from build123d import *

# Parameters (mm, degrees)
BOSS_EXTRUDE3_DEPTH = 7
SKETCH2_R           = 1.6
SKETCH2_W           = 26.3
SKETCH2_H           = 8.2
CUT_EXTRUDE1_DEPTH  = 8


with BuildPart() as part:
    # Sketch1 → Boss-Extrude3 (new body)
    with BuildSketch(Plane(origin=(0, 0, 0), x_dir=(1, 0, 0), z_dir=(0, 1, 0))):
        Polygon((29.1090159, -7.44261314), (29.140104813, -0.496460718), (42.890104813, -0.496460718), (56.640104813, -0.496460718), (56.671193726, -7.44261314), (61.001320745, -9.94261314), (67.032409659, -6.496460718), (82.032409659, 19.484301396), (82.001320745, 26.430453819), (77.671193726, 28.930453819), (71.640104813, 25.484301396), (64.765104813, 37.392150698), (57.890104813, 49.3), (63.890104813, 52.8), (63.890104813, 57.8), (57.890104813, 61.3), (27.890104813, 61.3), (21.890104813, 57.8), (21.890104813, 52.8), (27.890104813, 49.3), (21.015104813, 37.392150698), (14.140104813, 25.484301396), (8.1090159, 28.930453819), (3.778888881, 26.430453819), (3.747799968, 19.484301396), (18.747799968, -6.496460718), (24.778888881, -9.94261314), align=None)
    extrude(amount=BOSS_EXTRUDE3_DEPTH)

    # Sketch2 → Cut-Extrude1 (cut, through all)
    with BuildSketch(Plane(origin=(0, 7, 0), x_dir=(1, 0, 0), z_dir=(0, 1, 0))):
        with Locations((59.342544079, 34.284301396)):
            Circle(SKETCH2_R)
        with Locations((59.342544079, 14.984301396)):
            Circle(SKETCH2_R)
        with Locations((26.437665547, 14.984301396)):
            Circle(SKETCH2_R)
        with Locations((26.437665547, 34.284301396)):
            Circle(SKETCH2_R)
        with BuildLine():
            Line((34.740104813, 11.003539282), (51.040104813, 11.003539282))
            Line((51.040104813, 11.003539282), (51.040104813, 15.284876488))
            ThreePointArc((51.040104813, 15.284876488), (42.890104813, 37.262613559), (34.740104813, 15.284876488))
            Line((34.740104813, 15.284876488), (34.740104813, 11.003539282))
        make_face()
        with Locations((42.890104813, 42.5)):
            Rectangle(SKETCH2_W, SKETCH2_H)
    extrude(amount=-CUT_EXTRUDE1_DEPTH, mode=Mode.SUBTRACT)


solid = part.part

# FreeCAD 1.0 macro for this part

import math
import FreeCAD as App
import Part
import Sketcher

V = App.Vector
Q = App.Units.Quantity

doc = App.newDocument("Part")
body = doc.addObject("PartDesign::Body", "Body")

# Sketch on XZ plane
sketch1 = body.newObject("Sketcher::SketchObject", "Sketch")
sketch1.AttachmentSupport = (doc.getObject("XZ_Plane"), [""])
sketch1.MapMode = "FlatFace"
sketch1.addGeometry(Part.LineSegment(V(29, 7, 0), V(29, 0, 0)), False)
sketch1.addGeometry(Part.LineSegment(V(29, 0, 0), V(57, 0, 0)), False)
sketch1.addGeometry(Part.LineSegment(V(57, 0, 0), V(57, 7, 0)), False)
sketch1.addGeometry(Part.LineSegment(V(57, 7, 0), V(61, 10, 0)), False)
sketch1.addGeometry(Part.LineSegment(V(61, 10, 0), V(67, 6, 0)), False)
sketch1.addGeometry(Part.LineSegment(V(67, 6, 0), V(82, -19, 0)), False)
sketch1.addGeometry(Part.LineSegment(V(82, -19, 0), V(82, -26, 0)), False)
sketch1.addGeometry(Part.LineSegment(V(82, -26, 0), V(78, -29, 0)), False)
sketch1.addGeometry(Part.LineSegment(V(78, -29, 0), V(72, -25, 0)), False)
sketch1.addGeometry(Part.LineSegment(V(72, -25, 0), V(58, -49, 0)), False)
sketch1.addGeometry(Part.LineSegment(V(58, -49, 0), V(64, -53, 0)), False)
sketch1.addGeometry(Part.LineSegment(V(64, -53, 0), V(64, -58, 0)), False)
sketch1.addGeometry(Part.LineSegment(V(64, -58, 0), V(58, -61, 0)), False)
sketch1.addGeometry(Part.LineSegment(V(58, -61, 0), V(28, -61, 0)), False)
sketch1.addGeometry(Part.LineSegment(V(28, -61, 0), V(22, -58, 0)), False)
sketch1.addGeometry(Part.LineSegment(V(22, -58, 0), V(22, -53, 0)), False)
sketch1.addGeometry(Part.LineSegment(V(22, -53, 0), V(28, -49, 0)), False)
sketch1.addGeometry(Part.LineSegment(V(28, -49, 0), V(14, -25, 0)), False)
sketch1.addGeometry(Part.LineSegment(V(14, -25, 0), V(8, -29, 0)), False)
sketch1.addGeometry(Part.LineSegment(V(8, -29, 0), V(4, -26, 0)), False)
sketch1.addGeometry(Part.LineSegment(V(4, -26, 0), V(4, -19, 0)), False)
sketch1.addGeometry(Part.LineSegment(V(4, -19, 0), V(19, 6, 0)), False)
sketch1.addGeometry(Part.LineSegment(V(19, 6, 0), V(25, 10, 0)), False)
sketch1.addGeometry(Part.LineSegment(V(25, 10, 0), V(29, 7, 0)), False)
sketch1.addConstraint(Sketcher.Constraint("Coincident", 0, 2, 1, 1))
sketch1.addConstraint(Sketcher.Constraint("Coincident", 1, 2, 2, 1))
sketch1.addConstraint(Sketcher.Constraint("Coincident", 2, 2, 3, 1))
sketch1.addConstraint(Sketcher.Constraint("Coincident", 3, 2, 4, 1))
sketch1.addConstraint(Sketcher.Constraint("Coincident", 4, 2, 5, 1))
sketch1.addConstraint(Sketcher.Constraint("Coincident", 5, 2, 6, 1))
sketch1.addConstraint(Sketcher.Constraint("Coincident", 6, 2, 7, 1))
sketch1.addConstraint(Sketcher.Constraint("Coincident", 7, 2, 8, 1))
sketch1.addConstraint(Sketcher.Constraint("Coincident", 8, 2, 9, 1))
sketch1.addConstraint(Sketcher.Constraint("Coincident", 9, 2, 10, 1))
sketch1.addConstraint(Sketcher.Constraint("Coincident", 10, 2, 11, 1))
sketch1.addConstraint(Sketcher.Constraint("Coincident", 11, 2, 12, 1))
sketch1.addConstraint(Sketcher.Constraint("Coincident", 12, 2, 13, 1))
sketch1.addConstraint(Sketcher.Constraint("Coincident", 13, 2, 14, 1))
sketch1.addConstraint(Sketcher.Constraint("Coincident", 14, 2, 15, 1))
sketch1.addConstraint(Sketcher.Constraint("Coincident", 15, 2, 16, 1))
sketch1.addConstraint(Sketcher.Constraint("Coincident", 16, 2, 17, 1))
sketch1.addConstraint(Sketcher.Constraint("Coincident", 17, 2, 18, 1))
sketch1.addConstraint(Sketcher.Constraint("Coincident", 18, 2, 19, 1))
sketch1.addConstraint(Sketcher.Constraint("Coincident", 19, 2, 20, 1))
sketch1.addConstraint(Sketcher.Constraint("Coincident", 20, 2, 21, 1))
sketch1.addConstraint(Sketcher.Constraint("Coincident", 21, 2, 22, 1))
sketch1.addConstraint(Sketcher.Constraint("Coincident", 22, 2, 23, 1))
sketch1.addConstraint(Sketcher.Constraint("Coincident", 23, 2, 0, 1))
sketch1.addConstraint(Sketcher.Constraint("Horizontal", 1))
sketch1.addConstraint(Sketcher.Constraint("Vertical", 11))
sketch1.addConstraint(Sketcher.Constraint("Horizontal", 13))
sketch1.addConstraint(Sketcher.Constraint("Vertical", 15))
sketch1.addConstraint(Sketcher.Constraint("Perpendicular", 3, 5))
sketch1.addConstraint(Sketcher.Constraint("Parallel", 2, 6))
sketch1.addConstraint(Sketcher.Constraint("Perpendicular", 5, 7))
sketch1.addConstraint(Sketcher.Constraint("Parallel", 4, 8))
sketch1.addConstraint(Sketcher.Constraint("Parallel", 10, 14))
sketch1.addConstraint(Sketcher.Constraint("Parallel", 12, 16))
sketch1.addConstraint(Sketcher.Constraint("Perpendicular", 7, 17))
sketch1.addConstraint(Sketcher.Constraint("Perpendicular", 9, 19))
sketch1.addConstraint(Sketcher.Constraint("Parallel", 0, 20))
sketch1.addConstraint(Sketcher.Constraint("Perpendicular", 19, 21))
sketch1.addConstraint(Sketcher.Constraint("Parallel", 18, 22))
sketch1.addConstraint(Sketcher.Constraint("Perpendicular", 21, 23))
sketch1.addConstraint(Sketcher.Constraint("Horizontal", 11, 2, 14, 2))
sketch1.addConstraint(Sketcher.Constraint("Horizontal", 10, 2, 15, 2))
sketch1.addConstraint(Sketcher.Constraint("Horizontal", 9, 2, 16, 2))
sketch1.addConstraint(Sketcher.Constraint("Horizontal", 8, 2, 17, 2))
sketch1.addConstraint(Sketcher.Constraint("Horizontal", 7, 2, 18, 2))
sketch1.addConstraint(Sketcher.Constraint("Horizontal", 6, 2, 19, 2))
sketch1.addConstraint(Sketcher.Constraint("Horizontal", 5, 2, 20, 2))
sketch1.addConstraint(Sketcher.Constraint("Horizontal", 4, 2, 21, 2))
sketch1.addConstraint(Sketcher.Constraint("Horizontal", 3, 2, 22, 2))
sketch1.addConstraint(Sketcher.Constraint("Horizontal", 2, 2, 23, 2))
sketch1.addConstraint(Sketcher.Constraint("Vertical", 9, 2, 12, 2))
sketch1.addConstraint(Sketcher.Constraint("Vertical", 13, 2, 16, 2))
sketch1.addConstraint(Sketcher.Constraint("Equal", 2, 4))
sketch1.addConstraint(Sketcher.Constraint("Equal", 4, 6))
sketch1.addConstraint(Sketcher.Constraint("Equal", 3, 7))
sketch1.addConstraint(Sketcher.Constraint("Equal", 6, 8))
sketch1.addConstraint(Sketcher.Constraint("Equal", 8, 10))
sketch1.addConstraint(Sketcher.Constraint("Equal", 9, 17))
sketch1.addConstraint(Sketcher.Constraint("Equal", 16, 18))
sketch1.addConstraint(Sketcher.Constraint("DistanceX", 13, 2, 13, 1, 30.0))
sketch1.addConstraint(Sketcher.Constraint("DistanceY", 11, 2, 11, 1, 5.0))
sketch1.addConstraint(Sketcher.Constraint("Angle", 3, Q("30 deg")))
sketch1.addConstraint(Sketcher.Constraint("Distance", 3, 5.0))
sketch1.addConstraint(Sketcher.Constraint("Distance", 5, 30.0))
sketch1.addConstraint(Sketcher.Constraint("DistanceX", 1, 1, 1, 2, 27.5))
sketch1.addConstraint(Sketcher.Constraint("DistanceY", 1, 2, 4, 2, 6.0))
sketch1.addConstraint(Sketcher.Constraint("DistanceX", 3, 2, 6, 2, 21.0))
sketch1.addConstraint(Sketcher.Constraint("DistanceX", 9, 2, 10, 2, 6.0))
sketch1.addConstraint(Sketcher.Constraint("DistanceY", 12, 2, 9, 2, 12.0))
sketch1.addConstraint(Sketcher.Constraint("DistanceY", 9, 2, -1, 1, 49.3))
sketch1.addConstraint(Sketcher.Constraint("DistanceX", -1, 1, 20, 2, 3.7478))
sketch1.addConstraint(Sketcher.Constraint("DistanceX", -1, 1, 3, 2, 61.001321))
pad1 = body.newObject("PartDesign::Pad", "Pad")
pad1.Profile = sketch1
pad1.Length = 7
pad1.Reversed = True

# Sketch on XZ plane
sketch2 = body.newObject("Sketcher::SketchObject", "Sketch001")
sketch2.AttachmentSupport = (doc.getObject("XZ_Plane"), [""])
sketch2.MapMode = "FlatFace"
sketch2.AttachmentOffset = App.Placement(V(0, 0, -7), App.Rotation())
sketch2.addGeometry(Part.Circle(V(59.3, -34.3, 0), V(0, 0, 1), 1.6), False)
sketch2.addGeometry(Part.Circle(V(59.3, -15, 0), V(0, 0, 1), 1.6), False)
sketch2.addGeometry(Part.Circle(V(26.4, -15, 0), V(0, 0, 1), 1.6), False)
sketch2.addGeometry(Part.Circle(V(26.4, -34.3, 0), V(0, 0, 1), 1.6), False)
sketch2.addGeometry(Part.LineSegment(V(34.7, -11, 0), V(51, -11, 0)), False)
sketch2.addGeometry(Part.LineSegment(V(51, -11, 0), V(51, -15.3, 0)), False)
sketch2.addGeometry(Part.ArcOfCircle(Part.Circle(V(42.9, -24.8, 0), V(0, 0, 1), 12.5), math.radians(131), math.radians(409)), False)
sketch2.addGeometry(Part.LineSegment(V(34.7, -15.3, 0), V(34.7, -11, 0)), False)
sketch2.addGeometry(Part.LineSegment(V(29.7, -46.6, 0), V(29.7, -38.4, 0)), False)
sketch2.addGeometry(Part.LineSegment(V(29.7, -38.4, 0), V(56, -38.4, 0)), False)
sketch2.addGeometry(Part.LineSegment(V(56, -38.4, 0), V(56, -46.6, 0)), False)
sketch2.addGeometry(Part.LineSegment(V(56, -46.6, 0), V(29.7, -46.6, 0)), False)
sketch2.addConstraint(Sketcher.Constraint("Coincident", 4, 2, 5, 1))
sketch2.addConstraint(Sketcher.Constraint("Coincident", 5, 2, 6, 2))
sketch2.addConstraint(Sketcher.Constraint("Coincident", 6, 1, 7, 1))
sketch2.addConstraint(Sketcher.Constraint("Coincident", 7, 2, 4, 1))
sketch2.addConstraint(Sketcher.Constraint("Coincident", 8, 2, 9, 1))
sketch2.addConstraint(Sketcher.Constraint("Coincident", 9, 2, 10, 1))
sketch2.addConstraint(Sketcher.Constraint("Coincident", 10, 2, 11, 1))
sketch2.addConstraint(Sketcher.Constraint("Coincident", 11, 2, 8, 1))
sketch2.addConstraint(Sketcher.Constraint("Horizontal", 4))
sketch2.addConstraint(Sketcher.Constraint("Vertical", 5))
sketch2.addConstraint(Sketcher.Constraint("Vertical", 7))
sketch2.addConstraint(Sketcher.Constraint("Vertical", 8))
sketch2.addConstraint(Sketcher.Constraint("Horizontal", 9))
sketch2.addConstraint(Sketcher.Constraint("Vertical", 10))
sketch2.addConstraint(Sketcher.Constraint("Horizontal", 11))
sketch2.addConstraint(Sketcher.Constraint("Equal", 0, 1))
sketch2.addConstraint(Sketcher.Constraint("Equal", 1, 2))
sketch2.addConstraint(Sketcher.Constraint("Equal", 2, 3))
sketch2.addConstraint(Sketcher.Constraint("Horizontal", 1, 3, 2, 3))
sketch2.addConstraint(Sketcher.Constraint("Horizontal", 0, 3, 3, 3))
sketch2.addConstraint(Sketcher.Constraint("Horizontal", 5, 2, 6, 1))
sketch2.addConstraint(Sketcher.Constraint("Vertical", 0, 3, 1, 3))
sketch2.addConstraint(Sketcher.Constraint("Vertical", 2, 3, 3, 3))
sketch2.addConstraint(Sketcher.Constraint("Diameter", 0, 3.2))
sketch2.addConstraint(Sketcher.Constraint("Radius", 6, 12.5))
sketch2.addConstraint(Sketcher.Constraint("DistanceX", 4, 1, 4, 2, 16.3))
sketch2.addConstraint(Sketcher.Constraint("DistanceX", 9, 1, 9, 2, 26.3))
sketch2.addConstraint(Sketcher.Constraint("DistanceY", 8, 1, 8, 2, 8.2))
sketch2.addConstraint(Sketcher.Constraint("DistanceX", 8, 2, 6, 1, 5.0))
sketch2.addConstraint(Sketcher.Constraint("DistanceY", 8, 2, -1, 1, 38.4))
sketch2.addConstraint(Sketcher.Constraint("DistanceY", 0, 3, 1, 3, 19.3))
sketch2.addConstraint(Sketcher.Constraint("DistanceY", 0, 3, -1, 1, 34.284301))
sketch2.addConstraint(Sketcher.Constraint("DistanceY", 5, 2, 5, 1, 4.281337))
sketch2.addConstraint(Sketcher.Constraint("DistanceY", 4, 2, -1, 1, 11.003539))
sketch2.addConstraint(Sketcher.Constraint("DistanceX", 2, 3, 1, 3, 32.904879))
sketch2.addConstraint(Sketcher.Constraint("DistanceX", 6, 3, 0, 3, 16.452439))
sketch2.addConstraint(Sketcher.Constraint("DistanceX", -1, 1, 0, 3, 59.342544))
pocket1 = body.newObject("PartDesign::Pocket", "Pocket")
pocket1.Profile = sketch2
pocket1.Type = "ThroughAll"
pocket1.Reversed = True

doc.recompute()
